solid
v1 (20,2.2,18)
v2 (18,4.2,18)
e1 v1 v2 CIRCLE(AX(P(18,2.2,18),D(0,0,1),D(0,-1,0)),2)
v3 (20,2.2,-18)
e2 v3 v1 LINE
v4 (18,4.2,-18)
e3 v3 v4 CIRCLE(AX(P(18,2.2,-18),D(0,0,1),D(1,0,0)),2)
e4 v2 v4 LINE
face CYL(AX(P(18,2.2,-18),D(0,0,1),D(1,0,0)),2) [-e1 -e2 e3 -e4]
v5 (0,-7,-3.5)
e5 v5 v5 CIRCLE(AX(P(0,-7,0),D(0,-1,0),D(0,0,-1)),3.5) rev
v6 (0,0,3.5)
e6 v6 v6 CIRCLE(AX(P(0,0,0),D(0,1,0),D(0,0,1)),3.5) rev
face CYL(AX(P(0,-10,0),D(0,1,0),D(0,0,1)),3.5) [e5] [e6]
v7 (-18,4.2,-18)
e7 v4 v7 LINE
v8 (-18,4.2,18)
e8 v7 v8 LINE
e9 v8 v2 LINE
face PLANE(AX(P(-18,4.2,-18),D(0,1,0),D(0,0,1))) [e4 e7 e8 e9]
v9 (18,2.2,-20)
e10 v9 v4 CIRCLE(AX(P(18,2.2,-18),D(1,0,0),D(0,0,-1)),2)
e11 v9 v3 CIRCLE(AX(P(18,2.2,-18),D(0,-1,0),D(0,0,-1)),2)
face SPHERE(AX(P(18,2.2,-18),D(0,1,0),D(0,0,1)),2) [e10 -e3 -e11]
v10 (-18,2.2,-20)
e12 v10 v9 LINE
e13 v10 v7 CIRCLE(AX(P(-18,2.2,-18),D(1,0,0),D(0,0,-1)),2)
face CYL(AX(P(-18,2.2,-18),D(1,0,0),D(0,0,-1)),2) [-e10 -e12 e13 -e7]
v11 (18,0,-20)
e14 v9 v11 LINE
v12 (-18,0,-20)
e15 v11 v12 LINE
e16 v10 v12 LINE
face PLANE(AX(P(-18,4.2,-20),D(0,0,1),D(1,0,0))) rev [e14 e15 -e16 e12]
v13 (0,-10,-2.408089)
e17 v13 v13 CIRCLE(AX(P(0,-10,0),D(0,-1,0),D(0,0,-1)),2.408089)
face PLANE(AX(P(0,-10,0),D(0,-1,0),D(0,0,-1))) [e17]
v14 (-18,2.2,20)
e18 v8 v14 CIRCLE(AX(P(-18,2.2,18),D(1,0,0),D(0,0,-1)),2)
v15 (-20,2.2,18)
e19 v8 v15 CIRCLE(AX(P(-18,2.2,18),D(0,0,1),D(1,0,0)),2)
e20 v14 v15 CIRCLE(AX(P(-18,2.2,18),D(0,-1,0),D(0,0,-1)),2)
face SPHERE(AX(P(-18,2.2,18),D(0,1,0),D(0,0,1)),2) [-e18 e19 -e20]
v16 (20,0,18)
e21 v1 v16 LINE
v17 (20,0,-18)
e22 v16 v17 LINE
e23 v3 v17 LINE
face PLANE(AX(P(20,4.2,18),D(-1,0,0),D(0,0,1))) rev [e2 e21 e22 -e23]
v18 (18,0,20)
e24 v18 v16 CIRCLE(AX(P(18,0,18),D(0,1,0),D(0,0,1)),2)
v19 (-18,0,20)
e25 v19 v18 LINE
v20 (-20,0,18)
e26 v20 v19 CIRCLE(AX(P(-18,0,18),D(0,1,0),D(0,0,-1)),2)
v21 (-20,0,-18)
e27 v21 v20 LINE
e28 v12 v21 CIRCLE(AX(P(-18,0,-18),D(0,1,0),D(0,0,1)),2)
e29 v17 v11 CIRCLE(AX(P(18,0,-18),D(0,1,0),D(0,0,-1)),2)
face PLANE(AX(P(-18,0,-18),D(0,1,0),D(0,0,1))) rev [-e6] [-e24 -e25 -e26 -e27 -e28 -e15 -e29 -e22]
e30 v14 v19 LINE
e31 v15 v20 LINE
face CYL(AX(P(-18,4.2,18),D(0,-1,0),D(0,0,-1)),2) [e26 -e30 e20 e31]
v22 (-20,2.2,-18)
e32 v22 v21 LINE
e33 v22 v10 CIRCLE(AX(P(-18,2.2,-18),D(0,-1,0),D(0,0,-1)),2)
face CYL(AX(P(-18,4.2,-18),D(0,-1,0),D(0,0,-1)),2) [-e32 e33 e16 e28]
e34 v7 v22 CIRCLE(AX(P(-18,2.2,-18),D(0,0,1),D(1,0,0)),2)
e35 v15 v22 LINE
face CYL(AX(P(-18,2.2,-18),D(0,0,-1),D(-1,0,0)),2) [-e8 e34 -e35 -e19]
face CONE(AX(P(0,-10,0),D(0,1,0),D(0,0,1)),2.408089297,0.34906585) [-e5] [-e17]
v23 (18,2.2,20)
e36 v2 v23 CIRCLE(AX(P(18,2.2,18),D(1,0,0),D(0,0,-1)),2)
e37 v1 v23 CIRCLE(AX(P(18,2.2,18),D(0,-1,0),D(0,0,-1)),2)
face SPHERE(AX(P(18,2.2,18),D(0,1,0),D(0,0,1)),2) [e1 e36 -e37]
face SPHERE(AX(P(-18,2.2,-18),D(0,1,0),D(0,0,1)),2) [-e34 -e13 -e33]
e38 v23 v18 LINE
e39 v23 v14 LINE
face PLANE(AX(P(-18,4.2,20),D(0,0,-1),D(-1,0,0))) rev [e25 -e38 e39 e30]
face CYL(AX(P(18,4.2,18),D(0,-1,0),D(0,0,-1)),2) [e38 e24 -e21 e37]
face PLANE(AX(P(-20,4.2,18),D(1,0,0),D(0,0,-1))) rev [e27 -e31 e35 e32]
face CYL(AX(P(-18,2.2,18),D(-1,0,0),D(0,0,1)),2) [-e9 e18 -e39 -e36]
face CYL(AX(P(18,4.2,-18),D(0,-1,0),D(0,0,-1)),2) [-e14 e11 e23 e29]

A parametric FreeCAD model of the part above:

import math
import FreeCAD as App
import Part
import Sketcher
from FreeCAD import Vector
Q = App.Units.Quantity


def edges_at(feature, points):
    """Names of the edges that pass closest to the given points."""
    edges = feature.Shape.Edges
    near = lambda p: min(range(len(edges)), key=lambda i: edges[i].distToShape(Part.Vertex(*p))[0])
    return sorted({f"Edge{near(p) + 1}" for p in points})

doc = App.newDocument("Part")
body = doc.addObject("PartDesign::Body", "Body")

sketch1 = body.newObject("Sketcher::SketchObject", "Sketch")
sketch1.AttachmentSupport = (doc.getObject("XZ_Plane"), [""])
sketch1.MapMode = "FlatFace"
sketch1.addGeometry([
    Part.LineSegment(Vector(-20, -18, 0), Vector(-20, 18, 0)),
    Part.ArcOfCircle(Part.Circle(Vector(-18, 18, 0), Vector(0, 0, 1), 2), math.radians(90), math.radians(180)),
    Part.LineSegment(Vector(-18, 20, 0), Vector(18, 20, 0)),
    Part.ArcOfCircle(Part.Circle(Vector(18, 18, 0), Vector(0, 0, 1), 2), math.radians(0), math.radians(90)),
    Part.LineSegment(Vector(20, 18, 0), Vector(20, -18, 0)),
    Part.ArcOfCircle(Part.Circle(Vector(18, -18, 0), Vector(0, 0, 1), 2), math.radians(-90), math.radians(0)),
    Part.LineSegment(Vector(18, -20, 0), Vector(-18, -20, 0)),
    Part.ArcOfCircle(Part.Circle(Vector(-18, -18, 0), Vector(0, 0, 1), 2), math.radians(-180), math.radians(-90)),
], False)
sketch1.addConstraint([
    Sketcher.Constraint("Tangent", 0, 2, 1, 2),
    Sketcher.Constraint("Tangent", 1, 1, 2, 1),
    Sketcher.Constraint("Tangent", 2, 2, 3, 2),
    Sketcher.Constraint("Tangent", 3, 1, 4, 1),
    Sketcher.Constraint("Tangent", 4, 2, 5, 2),
    Sketcher.Constraint("Tangent", 5, 1, 6, 1),
    Sketcher.Constraint("Tangent", 6, 2, 7, 2),
    Sketcher.Constraint("Tangent", 7, 1, 0, 1),
    Sketcher.Constraint("Vertical", 0),
    Sketcher.Constraint("Horizontal", 2),
    Sketcher.Constraint("Vertical", 4),
    Sketcher.Constraint("Horizontal", 6),
    Sketcher.Constraint("Equal", 1, 3),
    Sketcher.Constraint("Equal", 3, 5),
    Sketcher.Constraint("Equal", 5, 7),
    Sketcher.Constraint("Symmetric", 1, 3, 5, 3, -1, 1),
    Sketcher.Constraint("Equal", 6, 0),
    Sketcher.Constraint("Radius", 1, Q("2 mm")),
    Sketcher.Constraint("DistanceX", 2, 1, 2, 2, Q("36 mm")),
])
pad1 = body.newObject("PartDesign::Pad", "Pad")
pad1.Profile = sketch1
pad1.Length = 4.2
pad1.Reversed = True
doc.recompute()

fillet = body.newObject("PartDesign::Fillet", "Fillet")
fillet.Base = (pad1, edges_at(pad1, [
    (-19.414, 4.2, 19.414),
    (0, 4.2, 20),
    (19.414, 4.2, 19.414),
    (20, 4.2, 0),
    (19.414, 4.2, -19.414),
    (0, 4.2, -20),
    (-19.414, 4.2, -19.414),
    (-20, 4.2, 0),
]))
fillet.Radius = 2

sketch2 = body.newObject("Sketcher::SketchObject", "Sketch001")
sketch2.AttachmentSupport = (doc.getObject("XZ_Plane"), [""])
sketch2.MapMode = "FlatFace"
sketch2.addGeometry(Part.Circle(Vector(0, 0, 0), Vector(0, 0, 1), 3.5), False)
sketch2.addConstraint([
    Sketcher.Constraint("Coincident", 0, 3, -1, 1),
    Sketcher.Constraint("Diameter", 0, Q("7 mm")),
])
pad2 = body.newObject("PartDesign::Pad", "Pad001")
pad2.Profile = sketch2
pad2.Length = 10
doc.recompute()

chamfer = body.newObject("PartDesign::Chamfer", "Chamfer")
chamfer.Base = (pad2, edges_at(pad2, [(0, -10, -3.5)]))
chamfer.ChamferType = "Two distances"
chamfer.Size = 3
chamfer.Size2 = 1.091911

doc.recompute()
